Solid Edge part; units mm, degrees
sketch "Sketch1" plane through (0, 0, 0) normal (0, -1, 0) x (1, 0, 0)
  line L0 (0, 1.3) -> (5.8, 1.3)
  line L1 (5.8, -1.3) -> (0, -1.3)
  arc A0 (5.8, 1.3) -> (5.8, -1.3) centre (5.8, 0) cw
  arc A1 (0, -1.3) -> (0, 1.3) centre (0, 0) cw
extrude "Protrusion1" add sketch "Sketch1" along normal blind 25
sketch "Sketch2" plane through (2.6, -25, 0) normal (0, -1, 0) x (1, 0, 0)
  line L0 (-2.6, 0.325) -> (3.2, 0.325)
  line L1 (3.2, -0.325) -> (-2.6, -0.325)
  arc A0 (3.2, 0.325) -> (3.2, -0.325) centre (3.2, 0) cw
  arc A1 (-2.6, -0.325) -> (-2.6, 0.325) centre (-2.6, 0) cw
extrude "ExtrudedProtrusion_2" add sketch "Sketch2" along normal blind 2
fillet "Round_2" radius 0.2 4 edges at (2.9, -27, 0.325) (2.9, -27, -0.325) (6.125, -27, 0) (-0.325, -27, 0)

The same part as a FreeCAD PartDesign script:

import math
import FreeCAD as App
import Part
import Sketcher
from FreeCAD import Vector
Q = App.Units.Quantity


def edges_at(feature, points):
    """Names of the edges that pass closest to the given points."""
    edges = feature.Shape.Edges
    near = lambda p: min(range(len(edges)), key=lambda i: edges[i].distToShape(Part.Vertex(*p))[0])
    return sorted({f"Edge{near(p) + 1}" for p in points})

doc = App.newDocument("Part")
params = doc.addObject("Spreadsheet::Sheet", "Params")
for row, (alias, value) in enumerate([
    ("sketch1_radius", "1.3 mm"),
    ("sketch1_width", "5.8 mm"),
    ("pad1_length", "25 mm"),
    ("sketch2_width", "5.8 mm"),
    ("pad2_length", "2 mm"),
    ("fillet_radius", "0.2 mm"),
], start=1):
    params.set(f"A{row}", alias)
    params.set(f"B{row}", "=" + value)
    params.setAlias(f"B{row}", alias)

body = doc.addObject("PartDesign::Body", "Body")

# Sketch on XZ plane
sketch1 = doc.addObject("Sketcher::SketchObject", "Sketch")
body.addObject(sketch1)
sketch1.AttachmentSupport = (doc.XZ_Plane, [""])
sketch1.MapMode = "FlatFace"
sketch1.addGeometry(Part.LineSegment(Vector(5.8, 1.3, 0), Vector(0, 1.3, 0)), False)
sketch1.addGeometry(Part.ArcOfCircle(Part.Circle(Vector(0, 0, 0), Vector(0, 0, 1), 1.3), math.radians(90), math.radians(270)), False)
sketch1.addGeometry(Part.LineSegment(Vector(0, -1.3, 0), Vector(5.8, -1.3, 0)), False)
sketch1.addGeometry(Part.ArcOfCircle(Part.Circle(Vector(5.8, 0, 0), Vector(0, 0, 1), 1.3), math.radians(-90), math.radians(90)), False)
sketch1.addConstraint(Sketcher.Constraint("Tangent", 0, 2, 1, 1))
sketch1.addConstraint(Sketcher.Constraint("Tangent", 1, 2, 2, 1))
sketch1.addConstraint(Sketcher.Constraint("Tangent", 2, 2, 3, 1))
sketch1.addConstraint(Sketcher.Constraint("Tangent", 3, 2, 0, 1))
sketch1.addConstraint(Sketcher.Constraint("Horizontal", 0))
sketch1.addConstraint(Sketcher.Constraint("Horizontal", 2))
sketch1.addConstraint(Sketcher.Constraint("Coincident", 1, 3, -1, 1))
sketch1.addConstraint(Sketcher.Constraint("Radius", 1, Q("1.3 mm")))
sketch1.addConstraint(Sketcher.Constraint("DistanceX", 0, 2, 0, 1, Q("5.8 mm")))
sketch1.setExpression("Constraints[7]", "Params.sketch1_radius")
sketch1.setExpression("Constraints[8]", "Params.sketch1_width")
pad1 = doc.addObject("PartDesign::Pad", "Pad")
body.addObject(pad1)
pad1.Profile = sketch1
pad1.setExpression("Length", "Params.pad1_length")

# Sketch on XZ plane
sketch2 = doc.addObject("Sketcher::SketchObject", "Sketch001")
body.addObject(sketch2)
sketch2.AttachmentSupport = (doc.XZ_Plane, [""])
sketch2.MapMode = "FlatFace"
sketch2.AttachmentOffset = App.Placement(Vector(0, 0, 25), App.Rotation())
sketch2.addGeometry(Part.LineSegment(Vector(5.8, 0.33, 0), Vector(0, 0.33, 0)), False)
sketch2.addGeometry(Part.ArcOfCircle(Part.Circle(Vector(0, 0, 0), Vector(0, 0, 1), 0.33), math.radians(90), math.radians(270)), False)
sketch2.addGeometry(Part.LineSegment(Vector(0, -0.33, 0), Vector(5.8, -0.33, 0)), False)
sketch2.addGeometry(Part.ArcOfCircle(Part.Circle(Vector(5.8, 0, 0), Vector(0, 0, 1), 0.33), math.radians(-90), math.radians(90)), False)
sketch2.addConstraint(Sketcher.Constraint("Tangent", 0, 2, 1, 1))
sketch2.addConstraint(Sketcher.Constraint("Tangent", 1, 2, 2, 1))
sketch2.addConstraint(Sketcher.Constraint("Tangent", 2, 2, 3, 1))
sketch2.addConstraint(Sketcher.Constraint("Tangent", 3, 2, 0, 1))
sketch2.addConstraint(Sketcher.Constraint("Horizontal", 0))
sketch2.addConstraint(Sketcher.Constraint("Horizontal", 2))
sketch2.addConstraint(Sketcher.Constraint("Coincident", 1, 3, -1, 1))
sketch2.addConstraint(Sketcher.Constraint("DistanceX", 0, 2, 0, 1, Q("5.8 mm")))
sketch2.addConstraint(Sketcher.Constraint("Radius", 1, Q("0.325 mm")))
sketch2.setExpression("Constraints[7]", "Params.sketch2_width")
pad2 = doc.addObject("PartDesign::Pad", "Pad001")
body.addObject(pad2)
pad2.Profile = sketch2
pad2.setExpression("Length", "Params.pad2_length")
doc.recompute()

fillet = doc.addObject("PartDesign::Fillet", "Fillet")
body.addObject(fillet)
fillet.Base = (pad2, edges_at(pad2, [
    (2.9, -27, 0.325),
    (2.9, -27, -0.325),
    (6.125, -27, 0),
    (-0.325, -27, 0),
]))
fillet.setExpression("Radius", "Params.fillet_radius")

doc.recompute()
